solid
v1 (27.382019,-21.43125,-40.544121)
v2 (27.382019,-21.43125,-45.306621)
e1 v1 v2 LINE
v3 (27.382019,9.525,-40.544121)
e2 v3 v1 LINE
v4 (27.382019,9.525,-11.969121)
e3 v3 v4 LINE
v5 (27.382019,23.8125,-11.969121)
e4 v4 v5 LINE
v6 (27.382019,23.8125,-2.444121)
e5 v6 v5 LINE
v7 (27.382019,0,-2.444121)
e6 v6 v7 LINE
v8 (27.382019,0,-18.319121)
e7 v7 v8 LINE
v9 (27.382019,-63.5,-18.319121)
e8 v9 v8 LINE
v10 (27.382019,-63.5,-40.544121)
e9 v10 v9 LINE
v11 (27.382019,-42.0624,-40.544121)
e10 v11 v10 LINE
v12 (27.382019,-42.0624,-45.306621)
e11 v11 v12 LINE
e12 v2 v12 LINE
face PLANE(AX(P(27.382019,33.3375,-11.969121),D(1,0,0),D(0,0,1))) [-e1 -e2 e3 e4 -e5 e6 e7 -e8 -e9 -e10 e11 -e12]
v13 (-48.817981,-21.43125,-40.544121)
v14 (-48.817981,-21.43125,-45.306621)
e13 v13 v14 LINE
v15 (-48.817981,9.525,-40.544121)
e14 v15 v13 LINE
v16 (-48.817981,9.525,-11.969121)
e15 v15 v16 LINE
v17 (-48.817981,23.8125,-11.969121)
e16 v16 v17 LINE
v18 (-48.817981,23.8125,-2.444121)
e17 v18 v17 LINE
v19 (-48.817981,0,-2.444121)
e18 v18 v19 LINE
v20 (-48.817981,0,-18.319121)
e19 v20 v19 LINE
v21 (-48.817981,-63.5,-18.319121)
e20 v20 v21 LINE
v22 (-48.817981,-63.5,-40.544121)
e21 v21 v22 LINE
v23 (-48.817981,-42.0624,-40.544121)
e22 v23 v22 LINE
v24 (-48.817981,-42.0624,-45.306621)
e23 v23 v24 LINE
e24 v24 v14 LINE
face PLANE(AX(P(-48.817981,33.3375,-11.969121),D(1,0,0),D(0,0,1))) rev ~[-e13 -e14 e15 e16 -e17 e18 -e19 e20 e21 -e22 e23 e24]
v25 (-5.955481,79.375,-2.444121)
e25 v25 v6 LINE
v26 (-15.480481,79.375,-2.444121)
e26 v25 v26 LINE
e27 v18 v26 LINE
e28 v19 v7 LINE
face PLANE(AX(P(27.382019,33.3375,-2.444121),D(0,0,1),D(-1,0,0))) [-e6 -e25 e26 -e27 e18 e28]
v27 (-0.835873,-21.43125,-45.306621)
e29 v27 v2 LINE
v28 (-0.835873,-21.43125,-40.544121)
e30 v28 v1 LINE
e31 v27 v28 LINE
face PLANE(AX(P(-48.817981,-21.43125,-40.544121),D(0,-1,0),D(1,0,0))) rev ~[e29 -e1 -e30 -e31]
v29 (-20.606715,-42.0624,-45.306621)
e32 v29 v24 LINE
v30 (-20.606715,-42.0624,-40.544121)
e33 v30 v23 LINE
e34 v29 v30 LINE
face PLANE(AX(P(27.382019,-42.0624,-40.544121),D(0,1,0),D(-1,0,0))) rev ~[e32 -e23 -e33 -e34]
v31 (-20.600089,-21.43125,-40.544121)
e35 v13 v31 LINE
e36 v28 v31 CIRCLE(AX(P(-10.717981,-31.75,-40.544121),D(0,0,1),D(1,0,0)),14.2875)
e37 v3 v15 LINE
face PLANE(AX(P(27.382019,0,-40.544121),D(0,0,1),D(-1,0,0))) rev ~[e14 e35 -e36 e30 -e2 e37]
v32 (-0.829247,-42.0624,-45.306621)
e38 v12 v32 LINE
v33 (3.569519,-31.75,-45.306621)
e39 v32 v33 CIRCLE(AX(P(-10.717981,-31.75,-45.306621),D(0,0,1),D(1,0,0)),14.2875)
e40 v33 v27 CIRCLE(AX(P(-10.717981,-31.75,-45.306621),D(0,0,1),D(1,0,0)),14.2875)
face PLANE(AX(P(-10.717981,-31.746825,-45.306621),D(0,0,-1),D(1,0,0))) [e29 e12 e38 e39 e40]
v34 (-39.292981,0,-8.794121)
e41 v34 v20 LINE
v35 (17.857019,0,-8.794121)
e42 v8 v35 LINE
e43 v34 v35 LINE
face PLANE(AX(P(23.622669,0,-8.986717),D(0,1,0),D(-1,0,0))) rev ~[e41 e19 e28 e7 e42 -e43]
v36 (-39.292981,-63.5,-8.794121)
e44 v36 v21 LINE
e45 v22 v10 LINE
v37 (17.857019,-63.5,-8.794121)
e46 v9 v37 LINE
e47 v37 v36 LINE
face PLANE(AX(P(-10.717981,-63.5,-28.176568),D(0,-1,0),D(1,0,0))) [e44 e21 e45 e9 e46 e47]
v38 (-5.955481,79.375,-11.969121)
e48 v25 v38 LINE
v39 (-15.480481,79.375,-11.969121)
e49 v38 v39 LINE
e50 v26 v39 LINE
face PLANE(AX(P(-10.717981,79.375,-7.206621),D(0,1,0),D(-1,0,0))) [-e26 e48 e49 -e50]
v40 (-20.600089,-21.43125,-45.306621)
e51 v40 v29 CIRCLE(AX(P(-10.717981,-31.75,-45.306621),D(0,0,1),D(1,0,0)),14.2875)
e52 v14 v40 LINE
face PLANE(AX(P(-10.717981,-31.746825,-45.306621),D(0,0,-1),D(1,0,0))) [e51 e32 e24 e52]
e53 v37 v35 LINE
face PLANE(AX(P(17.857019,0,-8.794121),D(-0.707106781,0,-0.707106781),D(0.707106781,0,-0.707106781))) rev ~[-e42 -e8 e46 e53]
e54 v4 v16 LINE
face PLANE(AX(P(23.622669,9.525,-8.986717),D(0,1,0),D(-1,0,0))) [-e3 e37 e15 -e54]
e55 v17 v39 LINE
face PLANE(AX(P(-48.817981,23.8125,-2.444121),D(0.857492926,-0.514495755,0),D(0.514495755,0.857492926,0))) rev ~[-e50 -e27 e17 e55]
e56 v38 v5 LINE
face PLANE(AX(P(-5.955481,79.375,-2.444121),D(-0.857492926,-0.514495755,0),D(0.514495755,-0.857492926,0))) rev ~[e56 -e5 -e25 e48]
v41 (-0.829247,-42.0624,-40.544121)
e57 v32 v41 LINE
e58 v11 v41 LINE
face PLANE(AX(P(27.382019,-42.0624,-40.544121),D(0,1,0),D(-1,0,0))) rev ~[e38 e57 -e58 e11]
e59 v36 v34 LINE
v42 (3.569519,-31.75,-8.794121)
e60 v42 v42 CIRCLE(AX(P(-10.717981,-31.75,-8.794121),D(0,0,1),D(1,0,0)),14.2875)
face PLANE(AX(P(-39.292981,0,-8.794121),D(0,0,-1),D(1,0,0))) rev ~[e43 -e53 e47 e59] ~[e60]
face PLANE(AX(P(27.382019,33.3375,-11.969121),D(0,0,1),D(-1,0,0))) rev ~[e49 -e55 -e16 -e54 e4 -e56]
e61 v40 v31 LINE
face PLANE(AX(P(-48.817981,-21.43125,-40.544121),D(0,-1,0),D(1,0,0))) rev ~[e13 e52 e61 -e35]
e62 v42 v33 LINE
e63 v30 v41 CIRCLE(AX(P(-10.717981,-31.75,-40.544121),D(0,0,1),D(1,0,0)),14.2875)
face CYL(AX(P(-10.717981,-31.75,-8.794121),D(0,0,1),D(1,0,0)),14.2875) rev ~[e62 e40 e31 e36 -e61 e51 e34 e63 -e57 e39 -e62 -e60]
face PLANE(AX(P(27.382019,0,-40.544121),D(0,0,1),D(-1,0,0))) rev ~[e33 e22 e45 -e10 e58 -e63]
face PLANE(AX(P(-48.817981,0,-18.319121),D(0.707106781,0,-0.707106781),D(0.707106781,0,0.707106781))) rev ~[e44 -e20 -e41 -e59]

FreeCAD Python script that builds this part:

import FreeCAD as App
import Part
import Sketcher
Q = App.Units.Quantity

doc = App.newDocument("Part")
body = doc.addObject("PartDesign::Body", "Body")

# Sketch on XZ plane
sketch1 = body.newObject("Sketcher::SketchObject", "Sketch")
sketch1.AttachmentSupport = (doc.getObject("XZ_Plane"), [""])
sketch1.MapMode = "FlatFace"
sketch1.addGeometry([
    Part.LineSegment(App.Vector(-48.817981, -18.319121, 0), App.Vector(-48.817981, -45.306621, 0)),  # 0
    Part.LineSegment(App.Vector(-48.817981, -45.306621, 0), App.Vector(27.382019, -45.306621, 0)),  # 1
    Part.LineSegment(App.Vector(27.382019, -45.306621, 0), App.Vector(27.382019, -18.319121, 0)),  # 2
    Part.LineSegment(App.Vector(27.382019, -18.319121, 0), App.Vector(17.857019, -8.794121, 0)),  # 3
    Part.LineSegment(App.Vector(17.857019, -8.794121, 0), App.Vector(-39.292981, -8.794121, 0)),  # 4
    Part.LineSegment(App.Vector(-39.292981, -8.794121, 0), App.Vector(-48.817981, -18.319121, 0)),  # 5
], False)
sketch1.addConstraint([
    Sketcher.Constraint("Coincident", 0, 2, 1, 1),
    Sketcher.Constraint("Coincident", 1, 2, 2, 1),
    Sketcher.Constraint("Coincident", 2, 2, 3, 1),
    Sketcher.Constraint("Coincident", 3, 2, 4, 1),
    Sketcher.Constraint("Coincident", 4, 2, 5, 1),
    Sketcher.Constraint("Coincident", 5, 2, 0, 1),
    Sketcher.Constraint("Vertical", 0),
    Sketcher.Constraint("Horizontal", 1),
    Sketcher.Constraint("Vertical", 2),
    Sketcher.Constraint("Horizontal", 4),
    Sketcher.Constraint("Perpendicular", 3, 5),
    Sketcher.Constraint("Horizontal", 2, 2, 5, 2),
    Sketcher.Constraint("Equal", 3, 5),
    Sketcher.Constraint("DistanceX", 1, 1, 1, 2, Q("3 in")),
    Sketcher.Constraint("DistanceX", 4, 2, 4, 1, Q("2.25 in")),
    Sketcher.Constraint("DistanceY", 0, 2, 0, 1, Q("1.0625 in")),
    Sketcher.Constraint("DistanceX", 0, 2, -1, 1, 48.817981),
    Sketcher.Constraint("DistanceY", 0, 2, -1, 1, 45.306621),
])
pad1 = body.newObject("PartDesign::Pad", "Pad")
pad1.Profile = sketch1
pad1.Length = Q("2.5 in")

# Sketch on XZ plane
sketch2 = body.newObject("Sketcher::SketchObject", "Sketch001")
sketch2.AttachmentSupport = (doc.getObject("XZ_Plane"), [""])
sketch2.MapMode = "FlatFace"
sketch2.AttachmentOffset = App.Placement(App.Vector(0, 0, 2.5 * 25.4), App.Rotation())
sketch2.addGeometry([
    Part.LineSegment(App.Vector(-48.817981, -40.544121, 0), App.Vector(-48.817981, -45.306621, 0)),
    Part.LineSegment(App.Vector(-48.817981, -45.306621, 0), App.Vector(27.382019, -45.306621, 0)),
    Part.LineSegment(App.Vector(27.382019, -45.306621, 0), App.Vector(27.382019, -40.544121, 0)),
    Part.LineSegment(App.Vector(27.382019, -40.544121, 0), App.Vector(-48.817981, -40.544121, 0)),
], False)
sketch2.addConstraint([
    Sketcher.Constraint("Coincident", 0, 2, 1, 1),
    Sketcher.Constraint("Coincident", 1, 2, 2, 1),
    Sketcher.Constraint("Coincident", 2, 2, 3, 1),
    Sketcher.Constraint("Coincident", 3, 2, 0, 1),
    Sketcher.Constraint("Vertical", 0),
    Sketcher.Constraint("Horizontal", 1),
    Sketcher.Constraint("Vertical", 2),
    Sketcher.Constraint("Horizontal", 3),
    Sketcher.Constraint("DistanceX", 1, 1, 1, 2, Q("3 in")),
    Sketcher.Constraint("DistanceY", 0, 2, 0, 1, Q("0.1875 in")),
    Sketcher.Constraint("DistanceX", 0, 2, -1, 1, 48.817981),
    Sketcher.Constraint("DistanceY", 0, 2, -1, 1, 45.306621),
])
pocket1 = body.newObject("PartDesign::Pocket", "Pocket")
pocket1.Profile = sketch2
pocket1.Length = Q("4.07 in")

# Sketch on XZ plane
sketch3 = body.newObject("Sketcher::SketchObject", "Sketch002")
sketch3.AttachmentSupport = (doc.getObject("XZ_Plane"), [""])
sketch3.MapMode = "FlatFace"
sketch3.addGeometry([
    Part.LineSegment(App.Vector(-48.817981, -18.319121, 0), App.Vector(-39.292981, -8.794121, 0)),  # 0
    Part.LineSegment(App.Vector(-39.292981, -8.794121, 0), App.Vector(17.857019, -8.794121, 0)),  # 1
    Part.LineSegment(App.Vector(17.857019, -8.794121, 0), App.Vector(27.382019, -18.319121, 0)),  # 2
    Part.LineSegment(App.Vector(27.382019, -18.319121, 0), App.Vector(27.382019, -40.544121, 0)),  # 3
    Part.LineSegment(App.Vector(27.382019, -40.544121, 0), App.Vector(-48.817981, -40.544121, 0)),  # 4
    Part.LineSegment(App.Vector(-48.817981, -40.544121, 0), App.Vector(-48.817981, -18.319121, 0)),  # 5
], False)
sketch3.addConstraint([
    Sketcher.Constraint("Coincident", 0, 2, 1, 1),
    Sketcher.Constraint("Coincident", 1, 2, 2, 1),
    Sketcher.Constraint("Coincident", 2, 2, 3, 1),
    Sketcher.Constraint("Coincident", 3, 2, 4, 1),
    Sketcher.Constraint("Coincident", 4, 2, 5, 1),
    Sketcher.Constraint("Coincident", 5, 2, 0, 1),
    Sketcher.Constraint("Horizontal", 1),
    Sketcher.Constraint("Vertical", 3),
    Sketcher.Constraint("Horizontal", 4),
    Sketcher.Constraint("Vertical", 5),
    Sketcher.Constraint("Perpendicular", 0, 2),
    Sketcher.Constraint("Horizontal", 2, 2, 5, 2),
    Sketcher.Constraint("Equal", 0, 2),
    Sketcher.Constraint("DistanceX", 4, 2, 4, 1, Q("3 in")),
    Sketcher.Constraint("DistanceX", 1, 1, 1, 2, Q("2.25 in")),
    Sketcher.Constraint("DistanceY", 3, 2, 3, 1, Q("0.875 in")),
    Sketcher.Constraint("DistanceX", 0, 2, -1, 1, 39.292981),
    Sketcher.Constraint("DistanceY", 0, 2, -1, 1, 8.794121),
])
pad2 = body.newObject("PartDesign::Pad", "Pad001")
pad2.Profile = sketch3
pad2.Length = Q("0.375 in")
pad2.Reversed = True

# Sketch on XY plane
sketch4 = body.newObject("Sketcher::SketchObject", "Sketch003")
sketch4.AttachmentSupport = (doc.getObject("XY_Plane"), [""])
sketch4.MapMode = "FlatFace"
sketch4.AttachmentOffset = App.Placement(App.Vector(0, 0, -8.794121), App.Rotation())
sketch4.addGeometry([
    Part.LineSegment(App.Vector(-39.292981, 9.525, 0), App.Vector(-39.292981, 0, 0)),
    Part.LineSegment(App.Vector(-39.292981, 0, 0), App.Vector(17.857019, 0, 0)),
    Part.LineSegment(App.Vector(17.857019, 0, 0), App.Vector(17.857019, 9.525, 0)),
    Part.LineSegment(App.Vector(17.857019, 9.525, 0), App.Vector(-39.292981, 9.525, 0)),
], False)
sketch4.addConstraint([
    Sketcher.Constraint("Coincident", 0, 2, 1, 1),
    Sketcher.Constraint("Coincident", 1, 2, 2, 1),
    Sketcher.Constraint("Coincident", 2, 2, 3, 1),
    Sketcher.Constraint("Coincident", 3, 2, 0, 1),
    Sketcher.Constraint("Vertical", 0),
    Sketcher.Constraint("Horizontal", 1),
    Sketcher.Constraint("Vertical", 2),
    Sketcher.Constraint("Horizontal", 3),
    Sketcher.Constraint("PointOnObject", 0, 2, -1),
    Sketcher.Constraint("DistanceX", 1, 1, 1, 2, Q("2.25 in")),
    Sketcher.Constraint("DistanceY", 0, 2, 0, 1, Q("0.375 in")),
    Sketcher.Constraint("DistanceX", 0, 2, -1, 1, 39.292981),
])
pad3 = body.newObject("PartDesign::Pad", "Pad002")
pad3.Profile = sketch4
pad3.Length = Q("0.25 in")

# Sketch on XZ plane
sketch5 = body.newObject("Sketcher::SketchObject", "Sketch004")
sketch5.AttachmentSupport = (doc.getObject("XZ_Plane"), [""])
sketch5.MapMode = "FlatFace"
sketch5.AttachmentOffset = App.Placement(App.Vector(0, 0, -0.375 * 25.4), App.Rotation())
sketch5.addGeometry([
    Part.LineSegment(App.Vector(17.857019, -8.794121, 0), App.Vector(17.857019, -2.444121, 0)),  # 0
    Part.LineSegment(App.Vector(17.857019, -2.444121, 0), App.Vector(27.382019, -2.444121, 0)),  # 1
    Part.LineSegment(App.Vector(27.382019, -2.444121, 0), App.Vector(27.382019, -18.319121, 0)),  # 2
    Part.LineSegment(App.Vector(27.382019, -18.319121, 0), App.Vector(17.857019, -8.794121, 0)),  # 3
    Part.LineSegment(App.Vector(-48.817981, -2.444121, 0), App.Vector(-39.292981, -2.444121, 0)),  # 4
    Part.LineSegment(App.Vector(-39.292981, -2.444121, 0), App.Vector(-39.292981, -8.794121, 0)),  # 5
    Part.LineSegment(App.Vector(-39.292981, -8.794121, 0), App.Vector(-48.817981, -18.319121, 0)),  # 6
    Part.LineSegment(App.Vector(-48.817981, -18.319121, 0), App.Vector(-48.817981, -2.444121, 0)),  # 7
], False)
sketch5.addConstraint([
    Sketcher.Constraint("Coincident", 0, 2, 1, 1),
    Sketcher.Constraint("Coincident", 1, 2, 2, 1),
    Sketcher.Constraint("Coincident", 2, 2, 3, 1),
    Sketcher.Constraint("Coincident", 3, 2, 0, 1),
    Sketcher.Constraint("Coincident", 4, 2, 5, 1),
    Sketcher.Constraint("Coincident", 5, 2, 6, 1),
    Sketcher.Constraint("Coincident", 6, 2, 7, 1),
    Sketcher.Constraint("Coincident", 7, 2, 4, 1),
    Sketcher.Constraint("Vertical", 0),
    Sketcher.Constraint("Horizontal", 1),
    Sketcher.Constraint("Vertical", 2),
    Sketcher.Constraint("Horizontal", 4),
    Sketcher.Constraint("Vertical", 5),
    Sketcher.Constraint("Vertical", 7),
    Sketcher.Constraint("Perpendicular", 3, 6),
    Sketcher.Constraint("Horizontal", 1, 2, 4, 2),
    Sketcher.Constraint("Horizontal", 3, 2, 5, 2),
    Sketcher.Constraint("Horizontal", 2, 2, 6, 2),
    Sketcher.Constraint("Equal", 1, 4),
    Sketcher.Constraint("DistanceX", 6, 2, 2, 2, Q("3 in")),
    Sketcher.Constraint("DistanceY", 0, 1, 0, 2, Q("0.25 in")),
    Sketcher.Constraint("DistanceX", 1, 1, 1, 2, Q("0.375 in")),
    Sketcher.Constraint("DistanceX", -1, 1, 0, 2, 17.857019),
    Sketcher.Constraint("DistanceY", 0, 2, -1, 1, 2.444121),
])
pad4 = body.newObject("PartDesign::Pad", "Pad003")
pad4.Profile = sketch5
pad4.Length = Q("0.375 in")

# Sketch on XZ plane
sketch6 = body.newObject("Sketcher::SketchObject", "Sketch005")
sketch6.AttachmentSupport = (doc.getObject("XZ_Plane"), [""])
sketch6.MapMode = "FlatFace"
sketch6.AttachmentOffset = App.Placement(App.Vector(0, 0, -0.375 * 25.4), App.Rotation())
sketch6.addGeometry([
    Part.LineSegment(App.Vector(27.382019, -2.444121, 0), App.Vector(27.382019, -11.969121, 0)),
    Part.LineSegment(App.Vector(27.382019, -11.969121, 0), App.Vector(-48.817981, -11.969121, 0)),
    Part.LineSegment(App.Vector(-48.817981, -11.969121, 0), App.Vector(-48.817981, -2.444121, 0)),
    Part.LineSegment(App.Vector(-48.817981, -2.444121, 0), App.Vector(27.382019, -2.444121, 0)),
], False)
sketch6.addConstraint([
    Sketcher.Constraint("Coincident", 0, 2, 1, 1),
    Sketcher.Constraint("Coincident", 1, 2, 2, 1),
    Sketcher.Constraint("Coincident", 2, 2, 3, 1),
    Sketcher.Constraint("Coincident", 3, 2, 0, 1),
    Sketcher.Constraint("Vertical", 0),
    Sketcher.Constraint("Horizontal", 1),
    Sketcher.Constraint("Vertical", 2),
    Sketcher.Constraint("Horizontal", 3),
    Sketcher.Constraint("DistanceX", 1, 2, 1, 1, Q("3 in")),
    Sketcher.Constraint("DistanceY", 0, 2, 0, 1, Q("0.375 in")),
    Sketcher.Constraint("DistanceX", -1, 1, 0, 2, 27.382019),
    Sketcher.Constraint("DistanceY", 0, 2, -1, 1, 11.969121),
])
pad5 = body.newObject("PartDesign::Pad", "Pad004")
pad5.Profile = sketch6
pad5.Length = Q("0.9375 in")
pad5.Reversed = True

# Sketch on XZ plane
sketch7 = body.newObject("Sketcher::SketchObject", "Sketch006")
sketch7.AttachmentSupport = (doc.getObject("XZ_Plane"), [""])
sketch7.MapMode = "FlatFace"
sketch7.AttachmentOffset = App.Placement(App.Vector(0, 0, -1.3125 * 25.4), App.Rotation())
sketch7.addGeometry([
    Part.LineSegment(App.Vector(27.382019, -2.444121, 0), App.Vector(27.382019, -11.969121, 0)),
    Part.LineSegment(App.Vector(27.382019, -11.969121, 0), App.Vector(-48.817981, -11.969121, 0)),
    Part.LineSegment(App.Vector(-48.817981, -11.969121, 0), App.Vector(-48.817981, -2.444121, 0)),
    Part.LineSegment(App.Vector(-48.817981, -2.444121, 0), App.Vector(27.382019, -2.444121, 0)),
], False)
sketch7.addConstraint([
    Sketcher.Constraint("Coincident", 0, 2, 1, 1),
    Sketcher.Constraint("Coincident", 1, 2, 2, 1),
    Sketcher.Constraint("Coincident", 2, 2, 3, 1),
    Sketcher.Constraint("Coincident", 3, 2, 0, 1),
    Sketcher.Constraint("Vertical", 0),
    Sketcher.Constraint("Horizontal", 1),
    Sketcher.Constraint("Vertical", 2),
    Sketcher.Constraint("Horizontal", 3),
    Sketcher.Constraint("DistanceX", 1, 2, 1, 1, Q("3 in")),
    Sketcher.Constraint("DistanceY", 0, 2, 0, 1, Q("0.375 in")),
    Sketcher.Constraint("DistanceX", -1, 1, 0, 2, 27.382019),
    Sketcher.Constraint("DistanceY", 0, 2, -1, 1, 11.969121),
])
pad6 = body.newObject("PartDesign::Pad", "Pad005")
pad6.Profile = sketch7
pad6.Length = Q("1.8125 in")
pad6.Reversed = True

# Sketch on XY plane
sketch8 = body.newObject("Sketcher::SketchObject", "Sketch007")
sketch8.AttachmentSupport = (doc.getObject("XY_Plane"), [""])
sketch8.MapMode = "FlatFace"
sketch8.AttachmentOffset = App.Placement(App.Vector(0, 0, -2.444121), App.Rotation())
sketch8.addGeometry([
    Part.LineSegment(App.Vector(-48.817981, 23.8125, 0), App.Vector(-15.480481, 79.375, 0)),  # 0
    Part.LineSegment(App.Vector(-15.480481, 79.375, 0), App.Vector(-48.817981, 79.375, 0)),  # 1
    Part.LineSegment(App.Vector(-48.817981, 79.375, 0), App.Vector(-48.817981, 23.8125, 0)),  # 2
    Part.LineSegment(App.Vector(27.382019, 79.375, 0), App.Vector(-5.955481, 79.375, 0)),  # 3
    Part.LineSegment(App.Vector(-5.955481, 79.375, 0), App.Vector(27.382019, 23.8125, 0)),  # 4
    Part.LineSegment(App.Vector(27.382019, 23.8125, 0), App.Vector(27.382019, 79.375, 0)),  # 5
], False)
sketch8.addConstraint([
    Sketcher.Constraint("Coincident", 0, 2, 1, 1),
    Sketcher.Constraint("Coincident", 1, 2, 2, 1),
    Sketcher.Constraint("Coincident", 2, 2, 0, 1),
    Sketcher.Constraint("Coincident", 3, 2, 4, 1),
    Sketcher.Constraint("Coincident", 4, 2, 5, 1),
    Sketcher.Constraint("Coincident", 5, 2, 3, 1),
    Sketcher.Constraint("Horizontal", 1),
    Sketcher.Constraint("Vertical", 2),
    Sketcher.Constraint("Horizontal", 3),
    Sketcher.Constraint("Vertical", 5),
    Sketcher.Constraint("Horizontal", 1, 2, 3, 2),
    Sketcher.Constraint("Horizontal", 2, 2, 4, 2),
    Sketcher.Constraint("Equal", 1, 3),
    Sketcher.Constraint("DistanceX", 2, 2, 4, 2, Q("3 in")),
    Sketcher.Constraint("DistanceX", 1, 2, 1, 1, Q("1.3125 in")),
    Sketcher.Constraint("DistanceY", 2, 2, 2, 1, Q("2.1875 in")),
    Sketcher.Constraint("DistanceY", -1, 1, 0, 2, Q("3.125 in")),
    Sketcher.Constraint("DistanceX", 0, 2, -1, 1, 15.480481),
])
pocket2 = body.newObject("PartDesign::Pocket", "Pocket001")
pocket2.Profile = sketch8
pocket2.Length = Q("1 in")

# Sketch on XY plane
sketch9 = body.newObject("Sketcher::SketchObject", "Sketch008")
sketch9.AttachmentSupport = (doc.getObject("XY_Plane"), [""])
sketch9.MapMode = "FlatFace"
sketch9.AttachmentOffset = App.Placement(App.Vector(0, 0, -40.544121), App.Rotation())
sketch9.addGeometry([
    Part.LineSegment(App.Vector(27.382019, -42.0624, 0), App.Vector(-48.817981, -42.0624, 0)),
    Part.LineSegment(App.Vector(-48.817981, -42.0624, 0), App.Vector(-48.817981, -21.43125, 0)),
    Part.LineSegment(App.Vector(-48.817981, -21.43125, 0), App.Vector(27.382019, -21.43125, 0)),
    Part.LineSegment(App.Vector(27.382019, -21.43125, 0), App.Vector(27.382019, -42.0624, 0)),
], False)
sketch9.addConstraint([
    Sketcher.Constraint("Coincident", 0, 2, 1, 1),
    Sketcher.Constraint("Coincident", 1, 2, 2, 1),
    Sketcher.Constraint("Coincident", 2, 2, 3, 1),
    Sketcher.Constraint("Coincident", 3, 2, 0, 1),
    Sketcher.Constraint("Horizontal", 0),
    Sketcher.Constraint("Vertical", 1),
    Sketcher.Constraint("Horizontal", 2),
    Sketcher.Constraint("Vertical", 3),
    Sketcher.Constraint("DistanceX", 0, 2, 0, 1, Q("3 in")),
    Sketcher.Constraint("DistanceY", 0, 2, -1, 1, Q("1.656 in")),
    Sketcher.Constraint("DistanceY", 1, 2, -1, 1, Q("0.84375 in")),
    Sketcher.Constraint("DistanceX", 0, 2, -1, 1, 48.817981),
])
pad7 = body.newObject("PartDesign::Pad", "Pad006")
pad7.Profile = sketch9
pad7.Length = Q("0.1875 in")
pad7.Reversed = True

# Sketch on XY plane
sketch10 = body.newObject("Sketcher::SketchObject", "Sketch009")
sketch10.AttachmentSupport = (doc.getObject("XY_Plane"), [""])
sketch10.MapMode = "FlatFace"
sketch10.AttachmentOffset = App.Placement(App.Vector(0, 0, -8.794121), App.Rotation())
sketch10.addGeometry(Part.Circle(App.Vector(-10.717981, -31.75, 0), App.Vector(0, 0, 1), 14.2875), False)
sketch10.addConstraint([
    Sketcher.Constraint("Diameter", 0, Q("1.125 in")),
    Sketcher.Constraint("DistanceY", 0, 3, -1, 1, Q("1.25 in")),
    Sketcher.Constraint("DistanceX", 0, 3, -1, 1, 10.717981),
])
pocket3 = body.newObject("PartDesign::Pocket", "Pocket002")
pocket3.Profile = sketch10
pocket3.Length = Q("2.14 in")

doc.recompute()
